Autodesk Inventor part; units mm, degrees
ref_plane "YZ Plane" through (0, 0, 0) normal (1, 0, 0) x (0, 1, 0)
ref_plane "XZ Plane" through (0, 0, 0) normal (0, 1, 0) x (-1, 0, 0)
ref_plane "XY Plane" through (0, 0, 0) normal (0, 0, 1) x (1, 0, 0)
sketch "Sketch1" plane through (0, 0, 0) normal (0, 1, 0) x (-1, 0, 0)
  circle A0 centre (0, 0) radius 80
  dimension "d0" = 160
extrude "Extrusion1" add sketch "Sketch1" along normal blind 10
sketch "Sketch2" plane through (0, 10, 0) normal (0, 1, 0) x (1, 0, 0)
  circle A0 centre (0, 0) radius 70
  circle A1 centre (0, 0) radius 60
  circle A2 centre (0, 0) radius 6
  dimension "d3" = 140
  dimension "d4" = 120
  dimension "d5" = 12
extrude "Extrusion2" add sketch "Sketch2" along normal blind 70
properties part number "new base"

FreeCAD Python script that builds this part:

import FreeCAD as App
import Part
import Sketcher

doc = App.newDocument("Part")
body = doc.addObject("PartDesign::Body", "Body")

sketch1 = doc.addObject("Sketcher::SketchObject", "Sketch")
body.addObject(sketch1)
sketch1.AttachmentSupport = (doc.XZ_Plane, [""])
sketch1.MapMode = "FlatFace"
sketch1.addGeometry(Part.Circle(App.Vector(0, 0, 0), App.Vector(0, 0, 1), 80), False)
sketch1.addConstraint([
    Sketcher.Constraint("Coincident", 0, 3, -1, 1),
    Sketcher.Constraint("Diameter", 0, 160.0),
])
pad1 = doc.addObject("PartDesign::Pad", "Pad")
body.addObject(pad1)
pad1.Profile = sketch1
pad1.Length = 10
pad1.Reversed = True

sketch2 = doc.addObject("Sketcher::SketchObject", "Sketch001")
body.addObject(sketch2)
sketch2.AttachmentSupport = (doc.XZ_Plane, [""])
sketch2.MapMode = "FlatFace"
sketch2.AttachmentOffset = App.Placement(App.Vector(0, 0, -10), App.Rotation())
sketch2.addGeometry([
    Part.Circle(App.Vector(0, 0, 0), App.Vector(0, 0, 1), 70),
    Part.Circle(App.Vector(0, 0, 0), App.Vector(0, 0, 1), 60),
    Part.Circle(App.Vector(0, 0, 0), App.Vector(0, 0, 1), 6),
], False)
sketch2.addConstraint([
    Sketcher.Constraint("Coincident", 0, 3, -1, 1),
    Sketcher.Constraint("Coincident", 1, 3, -1, 1),
    Sketcher.Constraint("Coincident", 2, 3, -1, 1),
    Sketcher.Constraint("Diameter", 0, 140.0),
    Sketcher.Constraint("Diameter", 1, 120.0),
    Sketcher.Constraint("Diameter", 2, 12.0),
])
pad2 = doc.addObject("PartDesign::Pad", "Pad001")
body.addObject(pad2)
pad2.Profile = sketch2
pad2.Length = 70
pad2.Reversed = True

doc.recompute()
